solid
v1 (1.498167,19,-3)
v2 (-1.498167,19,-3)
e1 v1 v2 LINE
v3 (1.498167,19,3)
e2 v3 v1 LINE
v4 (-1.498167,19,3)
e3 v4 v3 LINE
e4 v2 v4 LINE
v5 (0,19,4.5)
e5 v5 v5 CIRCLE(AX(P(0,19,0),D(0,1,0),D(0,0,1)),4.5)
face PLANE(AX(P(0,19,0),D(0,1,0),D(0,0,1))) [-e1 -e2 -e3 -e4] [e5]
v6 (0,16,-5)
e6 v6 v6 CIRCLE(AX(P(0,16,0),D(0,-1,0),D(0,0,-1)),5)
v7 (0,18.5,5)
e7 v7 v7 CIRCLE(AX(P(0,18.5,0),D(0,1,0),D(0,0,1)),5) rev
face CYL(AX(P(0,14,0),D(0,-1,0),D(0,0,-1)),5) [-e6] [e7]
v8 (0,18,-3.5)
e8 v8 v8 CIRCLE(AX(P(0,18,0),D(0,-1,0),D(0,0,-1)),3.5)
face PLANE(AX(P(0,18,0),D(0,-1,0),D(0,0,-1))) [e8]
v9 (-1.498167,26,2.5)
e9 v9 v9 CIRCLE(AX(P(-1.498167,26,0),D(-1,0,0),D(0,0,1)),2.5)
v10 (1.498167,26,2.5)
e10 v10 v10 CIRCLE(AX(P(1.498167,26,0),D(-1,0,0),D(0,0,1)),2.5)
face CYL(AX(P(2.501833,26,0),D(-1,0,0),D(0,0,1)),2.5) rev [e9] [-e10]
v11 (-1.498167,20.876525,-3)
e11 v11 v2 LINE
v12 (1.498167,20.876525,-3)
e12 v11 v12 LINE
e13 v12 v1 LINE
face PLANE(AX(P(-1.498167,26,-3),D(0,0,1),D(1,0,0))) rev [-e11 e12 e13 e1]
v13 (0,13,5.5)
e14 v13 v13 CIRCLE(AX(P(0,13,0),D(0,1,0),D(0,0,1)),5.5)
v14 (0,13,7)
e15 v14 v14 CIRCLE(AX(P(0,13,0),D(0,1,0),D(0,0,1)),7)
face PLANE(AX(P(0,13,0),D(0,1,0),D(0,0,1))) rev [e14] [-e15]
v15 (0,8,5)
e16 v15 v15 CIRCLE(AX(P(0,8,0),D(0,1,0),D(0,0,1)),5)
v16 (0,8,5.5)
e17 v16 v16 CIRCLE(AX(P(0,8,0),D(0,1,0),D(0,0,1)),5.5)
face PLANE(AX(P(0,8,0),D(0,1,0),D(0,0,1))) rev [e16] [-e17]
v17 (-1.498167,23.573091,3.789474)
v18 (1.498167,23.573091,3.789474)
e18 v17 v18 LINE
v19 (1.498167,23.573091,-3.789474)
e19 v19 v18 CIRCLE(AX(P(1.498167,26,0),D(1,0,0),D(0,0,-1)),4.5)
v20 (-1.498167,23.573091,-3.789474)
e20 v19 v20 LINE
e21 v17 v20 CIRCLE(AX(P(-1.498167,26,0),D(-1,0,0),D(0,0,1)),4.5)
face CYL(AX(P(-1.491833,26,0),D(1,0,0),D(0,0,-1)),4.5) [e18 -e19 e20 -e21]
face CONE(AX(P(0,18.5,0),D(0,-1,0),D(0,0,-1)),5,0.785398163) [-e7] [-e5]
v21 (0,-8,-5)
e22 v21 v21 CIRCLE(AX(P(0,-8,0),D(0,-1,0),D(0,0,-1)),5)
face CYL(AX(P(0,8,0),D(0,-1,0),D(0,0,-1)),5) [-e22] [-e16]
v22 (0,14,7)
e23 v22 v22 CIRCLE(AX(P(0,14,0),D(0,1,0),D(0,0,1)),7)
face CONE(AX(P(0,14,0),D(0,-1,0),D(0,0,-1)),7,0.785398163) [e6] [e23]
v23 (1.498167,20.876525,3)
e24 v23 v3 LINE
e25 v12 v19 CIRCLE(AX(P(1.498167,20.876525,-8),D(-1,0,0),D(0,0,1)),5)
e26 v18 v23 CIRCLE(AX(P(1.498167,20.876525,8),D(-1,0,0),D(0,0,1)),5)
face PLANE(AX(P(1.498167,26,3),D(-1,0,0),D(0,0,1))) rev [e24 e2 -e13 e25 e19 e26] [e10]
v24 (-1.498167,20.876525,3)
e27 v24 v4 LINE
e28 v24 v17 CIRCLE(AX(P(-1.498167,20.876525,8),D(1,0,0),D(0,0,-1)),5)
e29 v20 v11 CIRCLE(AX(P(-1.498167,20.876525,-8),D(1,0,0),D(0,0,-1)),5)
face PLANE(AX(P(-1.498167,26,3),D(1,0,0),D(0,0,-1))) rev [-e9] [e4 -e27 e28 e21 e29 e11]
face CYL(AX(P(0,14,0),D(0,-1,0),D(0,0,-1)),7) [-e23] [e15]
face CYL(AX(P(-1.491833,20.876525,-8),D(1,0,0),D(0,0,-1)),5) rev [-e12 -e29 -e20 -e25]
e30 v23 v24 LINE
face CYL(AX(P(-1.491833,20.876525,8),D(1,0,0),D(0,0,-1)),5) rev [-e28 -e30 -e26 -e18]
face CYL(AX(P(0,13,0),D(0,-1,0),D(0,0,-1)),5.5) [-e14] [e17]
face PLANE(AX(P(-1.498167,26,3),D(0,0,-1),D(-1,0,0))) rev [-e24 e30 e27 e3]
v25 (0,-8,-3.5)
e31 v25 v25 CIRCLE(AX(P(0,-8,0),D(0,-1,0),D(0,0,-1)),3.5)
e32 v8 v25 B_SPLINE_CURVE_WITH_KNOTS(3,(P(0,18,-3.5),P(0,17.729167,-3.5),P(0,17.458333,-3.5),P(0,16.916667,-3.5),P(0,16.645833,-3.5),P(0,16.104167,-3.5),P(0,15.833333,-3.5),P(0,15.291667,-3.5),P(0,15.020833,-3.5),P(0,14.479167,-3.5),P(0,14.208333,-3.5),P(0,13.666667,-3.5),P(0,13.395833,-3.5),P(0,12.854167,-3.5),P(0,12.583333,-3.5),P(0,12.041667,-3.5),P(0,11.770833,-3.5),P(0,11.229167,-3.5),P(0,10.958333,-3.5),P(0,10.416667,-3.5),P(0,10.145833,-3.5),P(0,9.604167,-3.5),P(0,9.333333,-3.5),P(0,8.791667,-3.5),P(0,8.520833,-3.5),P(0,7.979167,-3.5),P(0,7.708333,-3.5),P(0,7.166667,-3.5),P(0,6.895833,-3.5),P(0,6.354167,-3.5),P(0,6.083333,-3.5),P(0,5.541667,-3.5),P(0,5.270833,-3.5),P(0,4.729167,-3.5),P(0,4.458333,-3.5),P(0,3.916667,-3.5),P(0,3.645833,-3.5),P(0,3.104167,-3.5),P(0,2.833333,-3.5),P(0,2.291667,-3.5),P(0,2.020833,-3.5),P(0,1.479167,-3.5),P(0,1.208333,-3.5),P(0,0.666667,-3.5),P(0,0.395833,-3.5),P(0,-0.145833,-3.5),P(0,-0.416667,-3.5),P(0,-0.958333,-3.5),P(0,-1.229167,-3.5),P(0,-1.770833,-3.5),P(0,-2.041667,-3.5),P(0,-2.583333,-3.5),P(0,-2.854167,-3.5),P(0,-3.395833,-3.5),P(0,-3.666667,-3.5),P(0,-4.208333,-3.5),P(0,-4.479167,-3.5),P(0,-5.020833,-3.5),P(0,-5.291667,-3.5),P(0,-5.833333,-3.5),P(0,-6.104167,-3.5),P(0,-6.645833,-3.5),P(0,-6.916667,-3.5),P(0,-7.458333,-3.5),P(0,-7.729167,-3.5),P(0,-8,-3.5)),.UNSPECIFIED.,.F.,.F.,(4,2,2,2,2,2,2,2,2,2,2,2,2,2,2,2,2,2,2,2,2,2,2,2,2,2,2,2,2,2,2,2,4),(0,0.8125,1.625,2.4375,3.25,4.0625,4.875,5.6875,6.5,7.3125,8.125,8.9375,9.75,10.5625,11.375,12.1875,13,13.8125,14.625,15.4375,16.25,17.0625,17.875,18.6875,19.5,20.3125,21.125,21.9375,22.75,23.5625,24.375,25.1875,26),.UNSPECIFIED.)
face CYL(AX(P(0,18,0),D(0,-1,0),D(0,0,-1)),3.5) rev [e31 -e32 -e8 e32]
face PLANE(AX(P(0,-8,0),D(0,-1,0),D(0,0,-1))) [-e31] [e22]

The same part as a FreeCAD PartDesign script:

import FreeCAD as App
import Part
import Sketcher
from FreeCAD import Vector


def edges_at(feature, points):
    """Names of the edges that pass closest to the given points."""
    edges = feature.Shape.Edges
    near = lambda p: min(range(len(edges)), key=lambda i: edges[i].distToShape(Part.Vertex(*p))[0])
    return sorted({f"Edge{near(p) + 1}" for p in points})


def add_polygon(sketch, points):
    """Adds a closed chain of lines whose ends are joined by coincident constraints."""
    first, n = sketch.GeometryCount, len(points)
    for a, b in zip(points, points[1:] + points[:1]):
        sketch.addGeometry(Part.LineSegment(App.Vector(*a, 0), App.Vector(*b, 0)), False)
    for i in range(n):
        sketch.addConstraint(Sketcher.Constraint("Coincident", first + i, 2, first + (i + 1) % n, 1))

doc = App.newDocument("Part")
params = doc.addObject("Spreadsheet::Sheet", "Params")
for row, (alias, value) in enumerate([
    ("sketch1_diameter", "10 mm"),
    ("pad1_length", "8 mm"),
    ("sketch2_diameter", "11 mm"),
    ("pad2_length", "5 mm"),
    ("sketch3_diameter", "14 mm"),
    ("pad3_length", "1 mm"),
    ("sketch4_width", "5 mm"),
    ("sketch4_width2", "3 mm"),
    ("sketch4_height", "7 mm"),
    ("revolution_angle", "360 deg"),
    ("chamfer_size", "0.5 mm"),
    ("sketch5_height", "6 mm"),
    ("pad4_length", "7 mm"),
    ("sketch6_diameter", "9 mm"),
    ("pad5_length", "2.99 mm"),
    ("sketch7_diameter", "9 mm"),
    ("pad6_length", "2.99 mm"),
    ("sketch8_diameter", "5 mm"),
    ("pocket1_length", "4 mm"),
    ("sketch9_diameter", "10 mm"),
    ("pad7_length", "16 mm"),
    ("sketch10_diameter", "6.5 mm"),
    ("pocket2_length", "21 mm"),
    ("sketch11_diameter", "7 mm"),
    ("pocket3_length", "26 mm"),
    ("fillet_radius", "5 mm"),
], start=1):
    params.set(f"A{row}", alias)
    params.set(f"B{row}", "=" + value)
    params.setAlias(f"B{row}", alias)

body = doc.addObject("PartDesign::Body", "Body")

sketch1 = body.newObject("Sketcher::SketchObject", "Sketch")
sketch1.AttachmentSupport = (doc.getObject("XZ_Plane"), [""])
sketch1.MapMode = "FlatFace"
sketch1.addGeometry(Part.Circle(Vector(0, 0, 0), Vector(0, 0, 1), 5), False)
sketch1.addConstraint(Sketcher.Constraint("Coincident", 0, 3, -1, 1))
sketch1.addConstraint(Sketcher.Constraint("Diameter", 0, 10.0))
sketch1.setExpression("Constraints[1]", "Params.sketch1_diameter")
pad1 = body.newObject("PartDesign::Pad", "Pad")
pad1.Profile = sketch1
pad1.setExpression("Length", "Params.pad1_length")
pad1.Reversed = True

sketch2 = body.newObject("Sketcher::SketchObject", "Sketch001")
sketch2.AttachmentSupport = (doc.getObject("XZ_Plane"), [""])
sketch2.MapMode = "FlatFace"
sketch2.AttachmentOffset = App.Placement(Vector(0, 0, -8), App.Rotation())
sketch2.addGeometry(Part.Circle(Vector(0, 0, 0), Vector(0, 0, 1), 6), False)
sketch2.addConstraint(Sketcher.Constraint("Coincident", 0, 3, -1, 1))
sketch2.addConstraint(Sketcher.Constraint("Diameter", 0, 11.0))
sketch2.setExpression("Constraints[1]", "Params.sketch2_diameter")
pad2 = body.newObject("PartDesign::Pad", "Pad001")
pad2.Profile = sketch2
pad2.setExpression("Length", "Params.pad2_length")
pad2.Reversed = True

sketch3 = body.newObject("Sketcher::SketchObject", "Sketch002")
sketch3.AttachmentSupport = (doc.getObject("XZ_Plane"), [""])
sketch3.MapMode = "FlatFace"
sketch3.AttachmentOffset = App.Placement(Vector(0, 0, -13), App.Rotation())
sketch3.addGeometry(Part.Circle(Vector(0, 0, 0), Vector(0, 0, 1), 7), False)
sketch3.addConstraint(Sketcher.Constraint("Coincident", 0, 3, -1, 1))
sketch3.addConstraint(Sketcher.Constraint("Diameter", 0, 14.0))
sketch3.setExpression("Constraints[1]", "Params.sketch3_diameter")
pad3 = body.newObject("PartDesign::Pad", "Pad002")
pad3.Profile = sketch3
pad3.setExpression("Length", "Params.pad3_length")
pad3.Reversed = True

sketch4 = body.newObject("Sketcher::SketchObject", "Sketch003")
sketch4.AttachmentSupport = (doc.getObject("YZ_Plane"), [""])
sketch4.MapMode = "FlatFace"
add_polygon(sketch4, [(19, 0), (14, 0), (14, -7), (16, -5), (19, -5)])
sketch4.addConstraint(Sketcher.Constraint("Horizontal", 0))
sketch4.addConstraint(Sketcher.Constraint("Vertical", 1))
sketch4.addConstraint(Sketcher.Constraint("Horizontal", 3))
sketch4.addConstraint(Sketcher.Constraint("Vertical", 4))
sketch4.addConstraint(Sketcher.Constraint("PointOnObject", 0, 2, -1))
sketch4.addConstraint(Sketcher.Constraint("Equal", 0, 4))
sketch4.addConstraint(Sketcher.Constraint("DistanceX", 0, 2, 0, 1, 5.0))
sketch4.addConstraint(Sketcher.Constraint("DistanceX", 3, 1, 3, 2, 3.0))
sketch4.addConstraint(Sketcher.Constraint("DistanceY", 1, 2, 1, 1, 7.0))
sketch4.addConstraint(Sketcher.Constraint("DistanceX", -1, 1, 0, 2, 14.0))
sketch4.setExpression("Constraints[11]", "Params.sketch4_width")
sketch4.setExpression("Constraints[12]", "Params.sketch4_width2")
sketch4.setExpression("Constraints[13]", "Params.sketch4_height")
revolution = body.newObject("PartDesign::Revolution", "Revolution")
revolution.Profile = sketch4
revolution.ReferenceAxis = (sketch4, ["H_Axis"])
revolution.setExpression("Angle", "Params.revolution_angle")
doc.recompute()

chamfer = body.newObject("PartDesign::Chamfer", "Chamfer")
chamfer.Base = (revolution, edges_at(revolution, [(0, 19, 5)]))
chamfer.setExpression("Size", "Params.chamfer_size")

sketch5 = body.newObject("Sketcher::SketchObject", "Sketch004")
sketch5.AttachmentSupport = (doc.getObject("XZ_Plane"), [""])
sketch5.MapMode = "FlatFace"
sketch5.AttachmentOffset = App.Placement(Vector(0, 0, -19), App.Rotation())
add_polygon(sketch5, [(-1.5, -3), (-1.5, 3), (1.5, 3), (1.5, -3)])
sketch5.addConstraint(Sketcher.Constraint("Vertical", 0))
sketch5.addConstraint(Sketcher.Constraint("Horizontal", 1))
sketch5.addConstraint(Sketcher.Constraint("Vertical", 2))
sketch5.addConstraint(Sketcher.Constraint("Horizontal", 3))
sketch5.addConstraint(Sketcher.Constraint("Symmetric", 0, 2, 2, 2, -1, 1))
sketch5.addConstraint(Sketcher.Constraint("DistanceY", 0, 1, 0, 2, 6.0))
sketch5.addConstraint(Sketcher.Constraint("DistanceX", 1, 1, 1, 2, 2.996335))
sketch5.setExpression("Constraints[9]", "Params.sketch5_height")
pad4 = body.newObject("PartDesign::Pad", "Pad003")
pad4.Profile = sketch5
pad4.setExpression("Length", "Params.pad4_length")
pad4.Reversed = True

sketch6 = body.newObject("Sketcher::SketchObject", "Sketch005")
sketch6.AttachmentSupport = (doc.getObject("YZ_Plane"), [""])
sketch6.MapMode = "FlatFace"
sketch6.AttachmentOffset = App.Placement(Vector(0, 0, 1.498167), App.Rotation())
sketch6.addGeometry(Part.Circle(Vector(26, 0, 0), Vector(0, 0, 1), 4.5), False)
sketch6.addConstraint(Sketcher.Constraint("PointOnObject", 0, 3, -1))
sketch6.addConstraint(Sketcher.Constraint("Diameter", 0, 9.0))
sketch6.addConstraint(Sketcher.Constraint("DistanceX", -1, 1, 0, 3, 26.0))
sketch6.setExpression("Constraints[1]", "Params.sketch6_diameter")
pad5 = body.newObject("PartDesign::Pad", "Pad004")
pad5.Profile = sketch6
pad5.setExpression("Length", "Params.pad5_length")
pad5.Reversed = True

sketch7 = body.newObject("Sketcher::SketchObject", "Sketch006")
sketch7.AttachmentSupport = (doc.getObject("YZ_Plane"), [""])
sketch7.MapMode = "FlatFace"
sketch7.AttachmentOffset = App.Placement(Vector(0, 0, 1.491833), App.Rotation())
sketch7.addGeometry(Part.Circle(Vector(26, 0, 0), Vector(0, 0, 1), 4.5), False)
sketch7.addConstraint(Sketcher.Constraint("PointOnObject", 0, 3, -1))
sketch7.addConstraint(Sketcher.Constraint("Diameter", 0, 9.0))
sketch7.addConstraint(Sketcher.Constraint("DistanceX", -1, 1, 0, 3, 26.0))
sketch7.setExpression("Constraints[1]", "Params.sketch7_diameter")
pad6 = body.newObject("PartDesign::Pad", "Pad005")
pad6.Profile = sketch7
pad6.setExpression("Length", "Params.pad6_length")
pad6.Reversed = True

sketch8 = body.newObject("Sketcher::SketchObject", "Sketch007")
sketch8.AttachmentSupport = (doc.getObject("YZ_Plane"), [""])
sketch8.MapMode = "FlatFace"
sketch8.AttachmentOffset = App.Placement(Vector(0, 0, -1.498167), App.Rotation())
sketch8.addGeometry(Part.Circle(Vector(26, 0, 0), Vector(0, 0, 1), 2.5), False)
sketch8.addConstraint(Sketcher.Constraint("PointOnObject", 0, 3, -1))
sketch8.addConstraint(Sketcher.Constraint("Diameter", 0, 5.0))
sketch8.addConstraint(Sketcher.Constraint("DistanceX", -1, 1, 0, 3, 26.0))
sketch8.setExpression("Constraints[1]", "Params.sketch8_diameter")
pocket1 = body.newObject("PartDesign::Pocket", "Pocket")
pocket1.Profile = sketch8
pocket1.setExpression("Length", "Params.pocket1_length")
pocket1.Reversed = True

sketch9 = body.newObject("Sketcher::SketchObject", "Sketch008")
sketch9.AttachmentSupport = (doc.getObject("XZ_Plane"), [""])
sketch9.MapMode = "FlatFace"
sketch9.AttachmentOffset = App.Placement(Vector(0, 0, 8), App.Rotation())
sketch9.addGeometry(Part.Circle(Vector(0, 0, 0), Vector(0, 0, 1), 5), False)
sketch9.addConstraint(Sketcher.Constraint("Coincident", 0, 3, -1, 1))
sketch9.addConstraint(Sketcher.Constraint("Diameter", 0, 10.0))
sketch9.setExpression("Constraints[1]", "Params.sketch9_diameter")
pad7 = body.newObject("PartDesign::Pad", "Pad006")
pad7.Profile = sketch9
pad7.setExpression("Length", "Params.pad7_length")
pad7.Reversed = True

sketch10 = body.newObject("Sketcher::SketchObject", "Sketch009")
sketch10.AttachmentSupport = (doc.getObject("XZ_Plane"), [""])
sketch10.MapMode = "FlatFace"
sketch10.AttachmentOffset = App.Placement(Vector(0, 0, 8), App.Rotation())
sketch10.addGeometry(Part.Circle(Vector(0, 0, 0), Vector(0, 0, 1), 3.2), False)
sketch10.addConstraint(Sketcher.Constraint("Coincident", 0, 3, -1, 1))
sketch10.addConstraint(Sketcher.Constraint("Diameter", 0, 6.5))
sketch10.setExpression("Constraints[1]", "Params.sketch10_diameter")
pocket2 = body.newObject("PartDesign::Pocket", "Pocket001")
pocket2.Profile = sketch10
pocket2.setExpression("Length", "Params.pocket2_length")

sketch11 = body.newObject("Sketcher::SketchObject", "Sketch010")
sketch11.AttachmentSupport = (doc.getObject("XZ_Plane"), [""])
sketch11.MapMode = "FlatFace"
sketch11.AttachmentOffset = App.Placement(Vector(0, 0, 8), App.Rotation())
sketch11.addGeometry(Part.Circle(Vector(0, 0, 0), Vector(0, 0, 1), 3.5), False)
sketch11.addConstraint(Sketcher.Constraint("Coincident", 0, 3, -1, 1))
sketch11.addConstraint(Sketcher.Constraint("Diameter", 0, 7.0))
sketch11.setExpression("Constraints[1]", "Params.sketch11_diameter")
pocket3 = body.newObject("PartDesign::Pocket", "Pocket002")
pocket3.Profile = sketch11
pocket3.setExpression("Length", "Params.pocket3_length")
doc.recompute()

fillet = body.newObject("PartDesign::Fillet", "Fillet")
fillet.Base = (pocket3, edges_at(pocket3, [(0, 22.646, 3), (0, 22.646, -3)]))
fillet.setExpression("Radius", "Params.fillet_radius")

doc.recompute()
